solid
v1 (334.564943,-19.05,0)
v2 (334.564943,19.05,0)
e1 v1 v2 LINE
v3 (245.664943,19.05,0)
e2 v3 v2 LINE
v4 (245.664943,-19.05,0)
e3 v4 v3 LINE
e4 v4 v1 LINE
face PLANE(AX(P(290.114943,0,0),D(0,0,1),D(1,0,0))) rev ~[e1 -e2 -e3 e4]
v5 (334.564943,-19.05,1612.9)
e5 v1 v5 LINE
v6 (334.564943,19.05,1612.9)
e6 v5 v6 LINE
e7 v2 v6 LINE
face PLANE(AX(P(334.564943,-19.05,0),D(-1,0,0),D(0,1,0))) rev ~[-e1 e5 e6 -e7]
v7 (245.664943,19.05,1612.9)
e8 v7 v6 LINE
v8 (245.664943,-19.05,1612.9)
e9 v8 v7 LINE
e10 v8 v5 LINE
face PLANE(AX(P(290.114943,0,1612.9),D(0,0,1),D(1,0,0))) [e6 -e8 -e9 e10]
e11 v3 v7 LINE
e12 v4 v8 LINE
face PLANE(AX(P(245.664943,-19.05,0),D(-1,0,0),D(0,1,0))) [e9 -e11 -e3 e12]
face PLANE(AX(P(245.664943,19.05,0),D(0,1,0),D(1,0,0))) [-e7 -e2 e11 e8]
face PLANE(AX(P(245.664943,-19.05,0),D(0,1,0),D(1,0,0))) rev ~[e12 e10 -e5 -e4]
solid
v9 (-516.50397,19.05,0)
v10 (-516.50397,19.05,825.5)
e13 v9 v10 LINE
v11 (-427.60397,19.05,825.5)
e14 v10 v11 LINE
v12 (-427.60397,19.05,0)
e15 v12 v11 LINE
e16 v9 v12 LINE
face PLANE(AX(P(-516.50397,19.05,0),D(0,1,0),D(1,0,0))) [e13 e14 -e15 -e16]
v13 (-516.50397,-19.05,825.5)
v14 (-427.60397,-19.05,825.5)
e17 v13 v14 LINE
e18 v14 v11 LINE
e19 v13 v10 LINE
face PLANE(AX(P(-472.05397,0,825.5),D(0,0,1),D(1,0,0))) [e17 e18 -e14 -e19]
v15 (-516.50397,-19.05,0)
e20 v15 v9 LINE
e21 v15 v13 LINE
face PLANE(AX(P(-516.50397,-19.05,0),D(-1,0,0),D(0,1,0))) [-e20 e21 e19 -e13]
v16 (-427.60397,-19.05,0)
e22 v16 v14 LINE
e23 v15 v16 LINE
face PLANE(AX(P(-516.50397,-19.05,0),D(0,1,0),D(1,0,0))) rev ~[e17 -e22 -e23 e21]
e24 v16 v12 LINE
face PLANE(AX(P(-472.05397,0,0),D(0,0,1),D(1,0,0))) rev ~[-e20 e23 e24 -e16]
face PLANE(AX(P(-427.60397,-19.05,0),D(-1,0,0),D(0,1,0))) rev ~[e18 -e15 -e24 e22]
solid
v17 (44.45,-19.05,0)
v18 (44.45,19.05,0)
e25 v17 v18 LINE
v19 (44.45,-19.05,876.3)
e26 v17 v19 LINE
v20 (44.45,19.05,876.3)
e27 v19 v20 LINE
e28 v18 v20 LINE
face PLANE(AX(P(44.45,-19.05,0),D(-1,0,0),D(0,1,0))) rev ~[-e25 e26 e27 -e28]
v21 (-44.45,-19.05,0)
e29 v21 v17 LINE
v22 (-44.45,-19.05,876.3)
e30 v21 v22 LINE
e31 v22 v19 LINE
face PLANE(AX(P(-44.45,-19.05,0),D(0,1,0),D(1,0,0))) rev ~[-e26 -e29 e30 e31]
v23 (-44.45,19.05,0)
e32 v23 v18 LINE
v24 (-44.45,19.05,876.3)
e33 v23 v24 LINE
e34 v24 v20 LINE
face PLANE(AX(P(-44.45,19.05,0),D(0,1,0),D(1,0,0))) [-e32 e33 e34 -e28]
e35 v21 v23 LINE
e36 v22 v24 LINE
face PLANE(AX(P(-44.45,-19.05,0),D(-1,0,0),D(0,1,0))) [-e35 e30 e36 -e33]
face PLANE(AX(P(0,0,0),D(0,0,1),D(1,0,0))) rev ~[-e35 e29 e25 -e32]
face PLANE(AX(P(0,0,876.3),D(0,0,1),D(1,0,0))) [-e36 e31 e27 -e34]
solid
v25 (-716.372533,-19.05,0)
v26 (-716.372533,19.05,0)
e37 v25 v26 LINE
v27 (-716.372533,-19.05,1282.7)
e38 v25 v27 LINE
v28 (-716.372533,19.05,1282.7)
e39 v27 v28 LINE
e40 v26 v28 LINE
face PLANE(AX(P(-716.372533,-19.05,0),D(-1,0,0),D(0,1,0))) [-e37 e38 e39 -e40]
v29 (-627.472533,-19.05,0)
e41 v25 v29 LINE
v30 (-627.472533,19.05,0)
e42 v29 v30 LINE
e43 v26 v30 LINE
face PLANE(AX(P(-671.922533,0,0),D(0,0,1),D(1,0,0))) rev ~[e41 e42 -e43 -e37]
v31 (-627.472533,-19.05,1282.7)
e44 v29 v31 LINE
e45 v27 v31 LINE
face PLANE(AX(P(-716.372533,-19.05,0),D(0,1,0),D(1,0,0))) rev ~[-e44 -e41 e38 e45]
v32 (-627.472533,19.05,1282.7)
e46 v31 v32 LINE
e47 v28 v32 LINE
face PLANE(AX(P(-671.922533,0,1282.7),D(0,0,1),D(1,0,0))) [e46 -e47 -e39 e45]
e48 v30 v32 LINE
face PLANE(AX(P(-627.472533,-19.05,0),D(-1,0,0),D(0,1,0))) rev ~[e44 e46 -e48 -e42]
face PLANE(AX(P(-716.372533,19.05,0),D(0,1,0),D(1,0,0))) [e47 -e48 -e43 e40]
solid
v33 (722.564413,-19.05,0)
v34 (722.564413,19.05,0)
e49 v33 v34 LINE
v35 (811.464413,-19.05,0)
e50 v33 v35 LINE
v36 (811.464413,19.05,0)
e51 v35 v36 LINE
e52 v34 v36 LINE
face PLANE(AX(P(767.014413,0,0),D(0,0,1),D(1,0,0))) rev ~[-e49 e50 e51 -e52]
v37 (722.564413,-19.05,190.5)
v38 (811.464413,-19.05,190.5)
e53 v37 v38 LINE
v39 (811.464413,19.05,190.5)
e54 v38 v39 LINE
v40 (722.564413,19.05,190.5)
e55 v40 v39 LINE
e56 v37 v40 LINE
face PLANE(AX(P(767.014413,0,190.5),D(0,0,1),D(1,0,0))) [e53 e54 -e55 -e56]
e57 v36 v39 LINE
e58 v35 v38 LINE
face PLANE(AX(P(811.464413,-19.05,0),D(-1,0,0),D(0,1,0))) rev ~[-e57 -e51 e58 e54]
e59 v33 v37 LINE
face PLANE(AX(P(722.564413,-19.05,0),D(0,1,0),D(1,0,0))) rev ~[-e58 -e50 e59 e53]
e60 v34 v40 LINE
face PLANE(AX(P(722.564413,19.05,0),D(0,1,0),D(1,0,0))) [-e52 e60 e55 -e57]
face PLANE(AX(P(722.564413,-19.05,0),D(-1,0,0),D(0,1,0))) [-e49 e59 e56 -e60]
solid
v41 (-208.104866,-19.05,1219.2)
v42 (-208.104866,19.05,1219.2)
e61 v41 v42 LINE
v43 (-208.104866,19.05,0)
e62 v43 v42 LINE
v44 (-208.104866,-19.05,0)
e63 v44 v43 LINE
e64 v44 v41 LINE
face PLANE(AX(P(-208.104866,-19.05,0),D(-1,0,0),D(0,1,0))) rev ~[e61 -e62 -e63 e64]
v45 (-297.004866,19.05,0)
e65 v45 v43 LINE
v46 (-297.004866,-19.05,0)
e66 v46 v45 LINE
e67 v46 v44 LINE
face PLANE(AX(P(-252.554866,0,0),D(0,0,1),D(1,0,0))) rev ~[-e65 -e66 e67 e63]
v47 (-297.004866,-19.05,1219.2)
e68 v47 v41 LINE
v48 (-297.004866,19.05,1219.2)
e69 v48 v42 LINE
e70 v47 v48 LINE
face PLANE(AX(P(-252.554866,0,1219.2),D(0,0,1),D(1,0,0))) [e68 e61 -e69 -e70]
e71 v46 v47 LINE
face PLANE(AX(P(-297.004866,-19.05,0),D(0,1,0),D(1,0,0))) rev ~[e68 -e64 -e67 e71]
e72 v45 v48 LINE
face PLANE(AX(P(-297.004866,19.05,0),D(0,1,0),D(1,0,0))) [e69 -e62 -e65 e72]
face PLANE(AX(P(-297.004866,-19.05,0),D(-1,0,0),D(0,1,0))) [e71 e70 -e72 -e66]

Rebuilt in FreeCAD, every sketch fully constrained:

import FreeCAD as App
import Part
import Sketcher

V = App.Vector
Q = App.Units.Quantity


def add_polygon(sketch, points):
    """Adds a closed chain of lines whose ends are joined by coincident constraints."""
    first, n = sketch.GeometryCount, len(points)
    for a, b in zip(points, points[1:] + points[:1]):
        sketch.addGeometry(Part.LineSegment(App.Vector(*a, 0), App.Vector(*b, 0)), False)
    for i in range(n):
        sketch.addConstraint(Sketcher.Constraint("Coincident", first + i, 2, first + (i + 1) % n, 1))

doc = App.newDocument("Part")
body = doc.addObject("PartDesign::Body", "Body")

# Sketch on XY plane
sketch1 = doc.addObject("Sketcher::SketchObject", "Sketch")
body.addObject(sketch1)
sketch1.AttachmentSupport = (doc.XY_Plane, [""])
sketch1.MapMode = "FlatFace"
add_polygon(sketch1, [(-44, 19), (-44, -19), (44, -19), (44, 19)])  # lines 0-3
sketch1.addConstraint([
    Sketcher.Constraint("Vertical", 0),
    Sketcher.Constraint("Horizontal", 1),
    Sketcher.Constraint("Vertical", 2),
    Sketcher.Constraint("Horizontal", 3),
    Sketcher.Constraint("Symmetric", 0, 2, 2, 2, -1, 1),
    Sketcher.Constraint("DistanceX", 1, 1, 1, 2, Q("3.5 in")),
    Sketcher.Constraint("DistanceY", 0, 2, 0, 1, Q("1.5 in")),
])
pad1 = doc.addObject("PartDesign::Pad", "Pad")
body.addObject(pad1)
pad1.Profile = sketch1
pad1.Length = Q("34.5 in")
body2 = doc.addObject("PartDesign::Body", "Body001")

# Sketch on XY plane
sketch2 = doc.addObject("Sketcher::SketchObject", "Sketch001")
body2.addObject(sketch2)
sketch2.AttachmentSupport = (doc.getObject("XY_Plane001"), [""])
sketch2.MapMode = "FlatFace"
add_polygon(sketch2, [(-297, 19), (-297, -19), (-208, -19), (-208, 19)])  # lines 0-3
sketch2.addConstraint([
    Sketcher.Constraint("Vertical", 0),
    Sketcher.Constraint("Horizontal", 1),
    Sketcher.Constraint("Vertical", 2),
    Sketcher.Constraint("Horizontal", 3),
    Sketcher.Constraint("DistanceX", 1, 1, 1, 2, Q("3.5 in")),
    Sketcher.Constraint("DistanceY", 0, 2, 0, 1, Q("1.5 in")),
    Sketcher.Constraint("DistanceY", 0, 2, -1, 1, Q("0.75 in")),
    Sketcher.Constraint("DistanceX", 0, 2, -1, 1, 297.004866),
])
pad2 = doc.addObject("PartDesign::Pad", "Pad001")
body2.addObject(pad2)
pad2.Profile = sketch2
pad2.Length = Q("48 in")
body3 = doc.addObject("PartDesign::Body", "Body002")

# Sketch on XY plane
sketch3 = doc.addObject("Sketcher::SketchObject", "Sketch002")
body3.addObject(sketch3)
sketch3.AttachmentSupport = (doc.getObject("XY_Plane002"), [""])
sketch3.MapMode = "FlatFace"
add_polygon(sketch3, [(246, 19), (246, -19), (335, -19), (335, 19)])  # lines 0-3
sketch3.addConstraint([
    Sketcher.Constraint("Vertical", 0),
    Sketcher.Constraint("Horizontal", 1),
    Sketcher.Constraint("Vertical", 2),
    Sketcher.Constraint("Horizontal", 3),
    Sketcher.Constraint("DistanceX", 1, 1, 1, 2, Q("3.5 in")),
    Sketcher.Constraint("DistanceY", 0, 2, 0, 1, Q("1.5 in")),
    Sketcher.Constraint("DistanceY", 0, 2, -1, 1, Q("0.75 in")),
    Sketcher.Constraint("DistanceX", -1, 1, 0, 2, 245.664943),
])
pad3 = doc.addObject("PartDesign::Pad", "Pad002")
body3.addObject(pad3)
pad3.Profile = sketch3
pad3.Length = Q("63.5 in")
body4 = doc.addObject("PartDesign::Body", "Body003")

# Sketch on XY plane
sketch4 = doc.addObject("Sketcher::SketchObject", "Sketch003")
body4.addObject(sketch4)
sketch4.AttachmentSupport = (doc.getObject("XY_Plane003"), [""])
sketch4.MapMode = "FlatFace"
add_polygon(sketch4, [(-517, 19), (-517, -19), (-428, -19), (-428, 19)])  # lines 0-3
sketch4.addConstraint([
    Sketcher.Constraint("Vertical", 0),
    Sketcher.Constraint("Horizontal", 1),
    Sketcher.Constraint("Vertical", 2),
    Sketcher.Constraint("Horizontal", 3),
    Sketcher.Constraint("DistanceX", 1, 1, 1, 2, Q("3.5 in")),
    Sketcher.Constraint("DistanceY", 0, 2, 0, 1, Q("1.5 in")),
    Sketcher.Constraint("DistanceY", 0, 2, -1, 1, Q("0.75 in")),
    Sketcher.Constraint("DistanceX", 0, 2, -1, 1, 516.50397),
])
pad4 = doc.addObject("PartDesign::Pad", "Pad003")
body4.addObject(pad4)
pad4.Profile = sketch4
pad4.Length = Q("32.5 in")
body5 = doc.addObject("PartDesign::Body", "Body004")

# Sketch on XY plane
sketch5 = doc.addObject("Sketcher::SketchObject", "Sketch004")
body5.addObject(sketch5)
sketch5.AttachmentSupport = (doc.getObject("XY_Plane004"), [""])
sketch5.MapMode = "FlatFace"
add_polygon(sketch5, [(723, 19), (723, -19), (811, -19), (811, 19)])  # lines 0-3
sketch5.addConstraint([
    Sketcher.Constraint("Vertical", 0),
    Sketcher.Constraint("Horizontal", 1),
    Sketcher.Constraint("Vertical", 2),
    Sketcher.Constraint("Horizontal", 3),
    Sketcher.Constraint("DistanceX", 1, 1, 1, 2, Q("3.5 in")),
    Sketcher.Constraint("DistanceY", 0, 2, 0, 1, Q("1.5 in")),
    Sketcher.Constraint("DistanceY", 0, 2, -1, 1, Q("0.75 in")),
    Sketcher.Constraint("DistanceX", -1, 1, 0, 2, 722.564413),
])
pad5 = doc.addObject("PartDesign::Pad", "Pad004")
body5.addObject(pad5)
pad5.Profile = sketch5
pad5.Length = Q("7.5 in")
body6 = doc.addObject("PartDesign::Body", "Body005")

# Sketch on XY plane
sketch6 = doc.addObject("Sketcher::SketchObject", "Sketch005")
body6.addObject(sketch6)
sketch6.AttachmentSupport = (doc.getObject("XY_Plane005"), [""])
sketch6.MapMode = "FlatFace"
add_polygon(sketch6, [(-716, 19), (-716, -19), (-627, -19), (-627, 19)])  # lines 0-3
sketch6.addConstraint([
    Sketcher.Constraint("Vertical", 0),
    Sketcher.Constraint("Horizontal", 1),
    Sketcher.Constraint("Vertical", 2),
    Sketcher.Constraint("Horizontal", 3),
    Sketcher.Constraint("DistanceX", 1, 1, 1, 2, Q("3.5 in")),
    Sketcher.Constraint("DistanceY", 0, 2, 0, 1, Q("1.5 in")),
    Sketcher.Constraint("DistanceY", 0, 2, -1, 1, Q("0.75 in")),
    Sketcher.Constraint("DistanceX", 0, 2, -1, 1, 716.372533),
])
pad6 = doc.addObject("PartDesign::Pad", "Pad005")
body6.addObject(pad6)
pad6.Profile = sketch6
pad6.Length = Q("50.5 in")

doc.recompute()
